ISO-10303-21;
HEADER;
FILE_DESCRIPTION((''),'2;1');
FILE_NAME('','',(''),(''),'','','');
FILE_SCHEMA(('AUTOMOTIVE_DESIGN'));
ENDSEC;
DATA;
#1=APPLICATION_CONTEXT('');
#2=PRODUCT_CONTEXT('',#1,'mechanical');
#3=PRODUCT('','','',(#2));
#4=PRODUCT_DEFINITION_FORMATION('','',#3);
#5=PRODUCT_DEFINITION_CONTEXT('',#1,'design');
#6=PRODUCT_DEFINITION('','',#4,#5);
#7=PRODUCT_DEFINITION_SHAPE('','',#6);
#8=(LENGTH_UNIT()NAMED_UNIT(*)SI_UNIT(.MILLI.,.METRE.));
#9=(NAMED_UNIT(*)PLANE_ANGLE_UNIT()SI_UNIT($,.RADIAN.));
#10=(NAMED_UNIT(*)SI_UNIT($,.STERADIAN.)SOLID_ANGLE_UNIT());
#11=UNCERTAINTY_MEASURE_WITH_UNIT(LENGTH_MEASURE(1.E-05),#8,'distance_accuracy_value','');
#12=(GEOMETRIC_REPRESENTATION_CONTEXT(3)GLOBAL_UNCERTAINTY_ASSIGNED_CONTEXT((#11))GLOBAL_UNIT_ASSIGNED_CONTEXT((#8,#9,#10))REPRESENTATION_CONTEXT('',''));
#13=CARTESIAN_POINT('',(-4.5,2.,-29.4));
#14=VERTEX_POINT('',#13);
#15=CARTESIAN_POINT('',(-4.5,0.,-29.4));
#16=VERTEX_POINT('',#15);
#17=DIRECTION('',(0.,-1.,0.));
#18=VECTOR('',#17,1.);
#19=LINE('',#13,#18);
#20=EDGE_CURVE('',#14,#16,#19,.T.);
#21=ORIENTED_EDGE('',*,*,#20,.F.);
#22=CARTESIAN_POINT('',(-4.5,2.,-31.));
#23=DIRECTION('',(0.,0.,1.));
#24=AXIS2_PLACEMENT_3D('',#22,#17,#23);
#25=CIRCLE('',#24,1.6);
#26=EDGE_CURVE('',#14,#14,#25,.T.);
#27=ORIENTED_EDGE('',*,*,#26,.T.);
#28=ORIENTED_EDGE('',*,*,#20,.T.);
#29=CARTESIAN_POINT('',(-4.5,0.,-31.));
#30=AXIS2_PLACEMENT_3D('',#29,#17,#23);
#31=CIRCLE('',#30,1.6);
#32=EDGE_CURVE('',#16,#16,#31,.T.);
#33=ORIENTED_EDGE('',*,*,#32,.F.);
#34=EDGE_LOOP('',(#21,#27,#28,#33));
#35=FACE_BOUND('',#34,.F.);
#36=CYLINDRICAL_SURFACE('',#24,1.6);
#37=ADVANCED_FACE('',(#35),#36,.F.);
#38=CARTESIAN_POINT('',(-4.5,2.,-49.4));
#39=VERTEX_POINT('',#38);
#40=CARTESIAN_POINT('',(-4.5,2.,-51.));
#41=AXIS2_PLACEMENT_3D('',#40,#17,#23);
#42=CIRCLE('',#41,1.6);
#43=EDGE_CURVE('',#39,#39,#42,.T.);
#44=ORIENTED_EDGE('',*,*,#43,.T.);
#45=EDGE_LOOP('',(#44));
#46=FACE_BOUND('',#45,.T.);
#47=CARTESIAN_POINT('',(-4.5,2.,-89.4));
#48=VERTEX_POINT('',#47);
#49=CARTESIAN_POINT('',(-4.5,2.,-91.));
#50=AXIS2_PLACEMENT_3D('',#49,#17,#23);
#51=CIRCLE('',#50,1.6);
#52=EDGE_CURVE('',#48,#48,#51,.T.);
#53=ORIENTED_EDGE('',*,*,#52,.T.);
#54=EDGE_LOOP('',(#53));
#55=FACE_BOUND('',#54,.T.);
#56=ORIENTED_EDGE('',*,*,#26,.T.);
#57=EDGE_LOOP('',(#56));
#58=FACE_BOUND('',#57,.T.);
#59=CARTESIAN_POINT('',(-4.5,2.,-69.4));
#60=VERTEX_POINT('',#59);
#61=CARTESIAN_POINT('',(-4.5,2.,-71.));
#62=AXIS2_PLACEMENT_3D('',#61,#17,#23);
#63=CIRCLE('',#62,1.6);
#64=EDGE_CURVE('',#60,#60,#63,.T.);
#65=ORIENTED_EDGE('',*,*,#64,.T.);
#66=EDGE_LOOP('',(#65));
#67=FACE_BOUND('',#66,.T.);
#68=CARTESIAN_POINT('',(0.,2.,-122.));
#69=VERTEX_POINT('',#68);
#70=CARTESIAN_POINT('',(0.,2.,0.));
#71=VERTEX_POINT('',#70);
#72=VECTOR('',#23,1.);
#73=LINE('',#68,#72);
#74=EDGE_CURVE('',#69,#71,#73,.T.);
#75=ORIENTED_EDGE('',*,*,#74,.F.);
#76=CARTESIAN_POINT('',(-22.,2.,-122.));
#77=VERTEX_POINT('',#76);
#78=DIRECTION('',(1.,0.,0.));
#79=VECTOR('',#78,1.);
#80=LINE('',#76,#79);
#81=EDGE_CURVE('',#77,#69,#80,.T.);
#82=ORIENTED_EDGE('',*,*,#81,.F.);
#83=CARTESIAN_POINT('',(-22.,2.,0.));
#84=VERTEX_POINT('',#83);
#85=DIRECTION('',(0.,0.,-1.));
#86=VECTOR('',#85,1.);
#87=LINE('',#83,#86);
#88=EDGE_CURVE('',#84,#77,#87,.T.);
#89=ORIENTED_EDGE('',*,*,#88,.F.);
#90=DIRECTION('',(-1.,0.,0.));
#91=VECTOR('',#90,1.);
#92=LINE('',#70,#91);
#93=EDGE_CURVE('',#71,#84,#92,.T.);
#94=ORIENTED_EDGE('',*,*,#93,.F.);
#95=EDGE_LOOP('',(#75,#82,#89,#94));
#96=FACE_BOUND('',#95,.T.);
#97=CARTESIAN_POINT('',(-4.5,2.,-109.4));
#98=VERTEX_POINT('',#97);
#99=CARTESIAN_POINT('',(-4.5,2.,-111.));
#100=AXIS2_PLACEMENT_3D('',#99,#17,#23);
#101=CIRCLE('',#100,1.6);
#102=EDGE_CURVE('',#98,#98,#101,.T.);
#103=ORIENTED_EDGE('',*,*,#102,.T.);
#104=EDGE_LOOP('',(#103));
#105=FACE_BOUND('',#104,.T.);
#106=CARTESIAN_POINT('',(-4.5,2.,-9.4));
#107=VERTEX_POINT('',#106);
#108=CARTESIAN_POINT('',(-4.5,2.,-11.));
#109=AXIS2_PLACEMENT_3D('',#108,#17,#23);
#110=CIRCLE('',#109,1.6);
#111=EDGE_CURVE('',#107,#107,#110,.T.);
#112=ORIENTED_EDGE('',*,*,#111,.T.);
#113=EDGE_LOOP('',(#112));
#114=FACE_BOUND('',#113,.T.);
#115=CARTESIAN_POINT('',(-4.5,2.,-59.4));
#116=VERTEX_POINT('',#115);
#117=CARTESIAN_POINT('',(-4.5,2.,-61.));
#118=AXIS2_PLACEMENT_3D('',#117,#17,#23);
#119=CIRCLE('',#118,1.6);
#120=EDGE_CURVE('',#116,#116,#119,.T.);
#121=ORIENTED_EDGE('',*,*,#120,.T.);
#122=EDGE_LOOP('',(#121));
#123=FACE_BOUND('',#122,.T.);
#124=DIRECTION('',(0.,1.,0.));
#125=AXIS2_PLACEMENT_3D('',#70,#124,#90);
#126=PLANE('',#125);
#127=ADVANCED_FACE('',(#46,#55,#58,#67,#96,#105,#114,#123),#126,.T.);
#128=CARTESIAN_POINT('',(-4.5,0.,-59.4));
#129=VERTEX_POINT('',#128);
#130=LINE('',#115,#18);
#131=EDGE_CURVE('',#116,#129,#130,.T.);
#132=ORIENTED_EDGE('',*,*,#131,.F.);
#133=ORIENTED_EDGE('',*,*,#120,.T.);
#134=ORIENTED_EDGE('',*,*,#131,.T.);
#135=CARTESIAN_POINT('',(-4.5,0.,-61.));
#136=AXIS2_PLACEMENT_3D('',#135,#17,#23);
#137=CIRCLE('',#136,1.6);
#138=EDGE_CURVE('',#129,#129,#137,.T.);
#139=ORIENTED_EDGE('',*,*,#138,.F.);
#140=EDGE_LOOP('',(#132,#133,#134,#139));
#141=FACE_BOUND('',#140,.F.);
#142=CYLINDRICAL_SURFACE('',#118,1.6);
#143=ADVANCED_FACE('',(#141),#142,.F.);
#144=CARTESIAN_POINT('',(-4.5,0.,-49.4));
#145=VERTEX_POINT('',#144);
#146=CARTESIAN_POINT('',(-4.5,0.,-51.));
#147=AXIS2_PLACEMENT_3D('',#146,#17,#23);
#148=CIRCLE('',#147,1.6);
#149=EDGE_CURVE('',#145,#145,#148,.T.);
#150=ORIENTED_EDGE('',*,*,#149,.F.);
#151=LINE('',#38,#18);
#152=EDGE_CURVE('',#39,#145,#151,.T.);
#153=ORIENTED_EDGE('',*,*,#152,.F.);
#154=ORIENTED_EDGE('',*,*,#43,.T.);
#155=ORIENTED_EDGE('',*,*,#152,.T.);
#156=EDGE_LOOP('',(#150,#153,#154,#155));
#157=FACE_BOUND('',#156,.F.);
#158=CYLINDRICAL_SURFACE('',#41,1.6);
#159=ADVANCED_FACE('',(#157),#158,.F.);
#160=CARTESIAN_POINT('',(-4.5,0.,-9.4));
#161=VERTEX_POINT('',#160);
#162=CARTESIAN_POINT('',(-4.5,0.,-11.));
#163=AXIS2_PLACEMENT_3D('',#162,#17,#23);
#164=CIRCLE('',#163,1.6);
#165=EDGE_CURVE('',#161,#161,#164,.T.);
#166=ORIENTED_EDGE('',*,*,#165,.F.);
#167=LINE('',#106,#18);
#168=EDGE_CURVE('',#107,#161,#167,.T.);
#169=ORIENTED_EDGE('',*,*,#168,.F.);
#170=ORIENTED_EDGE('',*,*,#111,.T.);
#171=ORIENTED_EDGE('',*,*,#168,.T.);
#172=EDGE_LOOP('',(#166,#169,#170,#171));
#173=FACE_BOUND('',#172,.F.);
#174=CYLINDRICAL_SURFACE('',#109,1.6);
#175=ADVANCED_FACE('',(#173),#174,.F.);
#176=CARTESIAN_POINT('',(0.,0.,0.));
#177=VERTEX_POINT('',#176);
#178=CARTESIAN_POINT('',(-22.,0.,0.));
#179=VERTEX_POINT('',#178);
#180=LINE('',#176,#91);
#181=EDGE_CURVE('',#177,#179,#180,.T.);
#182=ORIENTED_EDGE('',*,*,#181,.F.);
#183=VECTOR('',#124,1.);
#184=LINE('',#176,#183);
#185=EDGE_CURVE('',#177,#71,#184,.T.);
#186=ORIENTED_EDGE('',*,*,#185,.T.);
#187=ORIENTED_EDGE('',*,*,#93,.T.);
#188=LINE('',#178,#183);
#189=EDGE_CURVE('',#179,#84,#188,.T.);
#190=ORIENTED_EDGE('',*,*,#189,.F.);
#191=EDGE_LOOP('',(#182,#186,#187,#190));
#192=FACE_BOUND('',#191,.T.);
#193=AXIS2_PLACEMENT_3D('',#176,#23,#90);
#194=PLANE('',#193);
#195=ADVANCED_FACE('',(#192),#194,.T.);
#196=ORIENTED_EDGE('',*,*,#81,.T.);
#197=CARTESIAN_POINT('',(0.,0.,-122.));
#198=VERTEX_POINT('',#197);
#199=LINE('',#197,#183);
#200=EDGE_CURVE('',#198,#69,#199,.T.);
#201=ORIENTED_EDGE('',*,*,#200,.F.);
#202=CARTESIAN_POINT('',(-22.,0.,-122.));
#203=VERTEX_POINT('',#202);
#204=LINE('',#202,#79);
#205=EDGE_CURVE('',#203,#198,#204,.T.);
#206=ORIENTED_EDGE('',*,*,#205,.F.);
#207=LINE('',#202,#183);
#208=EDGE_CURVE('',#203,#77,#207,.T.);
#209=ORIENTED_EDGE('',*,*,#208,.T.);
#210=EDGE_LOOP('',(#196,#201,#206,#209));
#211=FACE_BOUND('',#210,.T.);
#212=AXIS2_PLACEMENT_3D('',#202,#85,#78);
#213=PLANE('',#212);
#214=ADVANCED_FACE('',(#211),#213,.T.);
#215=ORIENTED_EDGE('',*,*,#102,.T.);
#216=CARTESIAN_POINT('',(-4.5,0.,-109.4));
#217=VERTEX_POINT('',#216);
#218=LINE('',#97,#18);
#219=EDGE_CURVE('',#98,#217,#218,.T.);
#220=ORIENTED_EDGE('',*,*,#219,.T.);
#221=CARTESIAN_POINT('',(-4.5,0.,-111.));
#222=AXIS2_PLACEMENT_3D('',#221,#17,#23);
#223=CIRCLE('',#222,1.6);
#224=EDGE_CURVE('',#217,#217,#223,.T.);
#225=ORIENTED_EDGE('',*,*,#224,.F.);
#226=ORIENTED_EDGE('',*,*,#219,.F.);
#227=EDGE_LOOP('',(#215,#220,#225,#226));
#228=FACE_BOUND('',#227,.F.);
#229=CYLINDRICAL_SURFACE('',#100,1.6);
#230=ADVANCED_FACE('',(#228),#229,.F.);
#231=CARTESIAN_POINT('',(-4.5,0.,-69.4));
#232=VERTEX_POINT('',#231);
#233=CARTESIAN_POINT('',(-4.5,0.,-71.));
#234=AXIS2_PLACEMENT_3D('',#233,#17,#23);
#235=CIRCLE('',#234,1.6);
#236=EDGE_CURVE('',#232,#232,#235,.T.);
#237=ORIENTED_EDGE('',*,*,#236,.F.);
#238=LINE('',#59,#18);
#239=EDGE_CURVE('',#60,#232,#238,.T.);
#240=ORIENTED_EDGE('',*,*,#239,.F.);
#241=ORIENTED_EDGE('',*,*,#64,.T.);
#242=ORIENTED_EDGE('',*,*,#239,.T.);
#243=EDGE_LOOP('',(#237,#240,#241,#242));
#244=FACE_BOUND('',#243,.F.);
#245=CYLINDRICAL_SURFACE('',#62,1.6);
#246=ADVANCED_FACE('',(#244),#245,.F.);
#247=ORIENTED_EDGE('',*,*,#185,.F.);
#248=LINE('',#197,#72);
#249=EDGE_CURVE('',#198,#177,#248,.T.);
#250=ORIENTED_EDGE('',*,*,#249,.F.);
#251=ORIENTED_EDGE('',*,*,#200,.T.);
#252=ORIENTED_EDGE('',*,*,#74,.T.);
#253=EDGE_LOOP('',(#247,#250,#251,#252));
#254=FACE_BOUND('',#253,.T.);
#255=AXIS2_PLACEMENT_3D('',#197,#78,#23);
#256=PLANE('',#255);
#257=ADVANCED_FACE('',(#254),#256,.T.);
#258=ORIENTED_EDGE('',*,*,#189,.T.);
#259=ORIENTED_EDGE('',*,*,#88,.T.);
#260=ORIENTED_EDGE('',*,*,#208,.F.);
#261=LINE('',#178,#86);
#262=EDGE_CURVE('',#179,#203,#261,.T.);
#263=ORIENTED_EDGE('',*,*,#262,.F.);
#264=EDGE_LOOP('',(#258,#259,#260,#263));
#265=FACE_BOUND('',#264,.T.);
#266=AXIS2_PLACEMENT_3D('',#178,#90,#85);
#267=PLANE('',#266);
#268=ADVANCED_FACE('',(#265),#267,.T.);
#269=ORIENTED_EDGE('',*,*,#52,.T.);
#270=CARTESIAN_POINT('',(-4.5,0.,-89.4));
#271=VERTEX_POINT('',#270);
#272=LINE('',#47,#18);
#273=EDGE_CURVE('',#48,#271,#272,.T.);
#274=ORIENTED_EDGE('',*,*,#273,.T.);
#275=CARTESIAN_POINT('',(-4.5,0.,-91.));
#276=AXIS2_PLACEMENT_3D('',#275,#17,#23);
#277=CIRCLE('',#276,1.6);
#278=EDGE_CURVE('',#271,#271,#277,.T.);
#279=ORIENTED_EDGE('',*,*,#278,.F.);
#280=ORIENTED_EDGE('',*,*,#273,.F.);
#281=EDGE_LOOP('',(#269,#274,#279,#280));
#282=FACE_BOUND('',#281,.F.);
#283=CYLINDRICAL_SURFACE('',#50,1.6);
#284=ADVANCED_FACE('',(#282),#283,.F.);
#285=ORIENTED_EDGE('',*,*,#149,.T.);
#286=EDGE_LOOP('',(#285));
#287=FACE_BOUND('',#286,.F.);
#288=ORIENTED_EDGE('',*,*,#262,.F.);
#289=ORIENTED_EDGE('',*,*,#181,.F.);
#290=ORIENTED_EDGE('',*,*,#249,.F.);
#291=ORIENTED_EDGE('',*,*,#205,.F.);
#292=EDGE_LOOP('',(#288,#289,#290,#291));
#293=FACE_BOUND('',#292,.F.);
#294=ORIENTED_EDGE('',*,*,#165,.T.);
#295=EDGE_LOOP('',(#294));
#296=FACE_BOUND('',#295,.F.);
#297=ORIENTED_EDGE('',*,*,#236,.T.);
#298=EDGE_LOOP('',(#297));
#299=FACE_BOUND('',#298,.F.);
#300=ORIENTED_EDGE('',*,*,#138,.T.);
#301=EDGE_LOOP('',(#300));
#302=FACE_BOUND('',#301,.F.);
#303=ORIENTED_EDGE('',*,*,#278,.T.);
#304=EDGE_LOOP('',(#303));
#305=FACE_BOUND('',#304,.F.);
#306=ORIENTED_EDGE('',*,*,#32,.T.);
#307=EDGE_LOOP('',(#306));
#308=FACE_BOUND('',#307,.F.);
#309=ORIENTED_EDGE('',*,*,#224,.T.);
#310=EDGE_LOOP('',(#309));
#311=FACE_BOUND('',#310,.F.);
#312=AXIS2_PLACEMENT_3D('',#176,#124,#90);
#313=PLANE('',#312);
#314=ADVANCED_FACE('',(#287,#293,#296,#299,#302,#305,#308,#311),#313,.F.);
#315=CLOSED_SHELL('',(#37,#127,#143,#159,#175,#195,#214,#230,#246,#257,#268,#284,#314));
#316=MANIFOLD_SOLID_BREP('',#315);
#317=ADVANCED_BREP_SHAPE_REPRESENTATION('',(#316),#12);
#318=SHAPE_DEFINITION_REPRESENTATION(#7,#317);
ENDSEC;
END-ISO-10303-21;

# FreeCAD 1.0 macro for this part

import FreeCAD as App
import Part
import Sketcher
from FreeCAD import Vector
Q = App.Units.Quantity

doc = App.newDocument("Part")
params = doc.addObject("Spreadsheet::Sheet", "Params")
for row, (alias, value) in enumerate([
    ("sketch1_width", "22 mm"),
    ("sketch1_height", "122 mm"),
    ("pad1_length", "2 mm"),
    ("sketch2_diameter", "3.2 mm"),
    ("hole_diameter", "3.2 mm"),
    ("hole_depth", "3 mm"),
], start=1):
    params.set(f"A{row}", alias)
    params.set(f"B{row}", "=" + value)
    params.setAlias(f"B{row}", alias)

body = doc.addObject("PartDesign::Body", "Body")

# Sketch on XZ plane
sketch1 = doc.addObject("Sketcher::SketchObject", "Sketch")
body.addObject(sketch1)
sketch1.AttachmentSupport = (doc.XZ_Plane, [""])
sketch1.MapMode = "FlatFace"
sketch1.addGeometry([
    Part.LineSegment(Vector(-22, 0, 0), Vector(0, 0, 0)),
    Part.LineSegment(Vector(0, 0, 0), Vector(0, -122, 0)),
    Part.LineSegment(Vector(0, -122, 0), Vector(-22, -122, 0)),
    Part.LineSegment(Vector(-22, -122, 0), Vector(-22, 0, 0)),
], False)
sketch1.addConstraint([
    Sketcher.Constraint("Coincident", 0, 2, 1, 1),
    Sketcher.Constraint("Coincident", 1, 2, 2, 1),
    Sketcher.Constraint("Coincident", 2, 2, 3, 1),
    Sketcher.Constraint("Coincident", 3, 2, 0, 1),
    Sketcher.Constraint("Horizontal", 0),
    Sketcher.Constraint("Vertical", 1),
    Sketcher.Constraint("Horizontal", 2),
    Sketcher.Constraint("Vertical", 3),
    Sketcher.Constraint("Coincident", 0, 2, -1, 1),
    Sketcher.Constraint("DistanceX", 0, 1, 0, 2, Q("22 mm")),
    Sketcher.Constraint("DistanceY", 1, 2, 1, 1, Q("122 mm")),
])
sketch1.setExpression("Constraints[9]", "Params.sketch1_width")
sketch1.setExpression("Constraints[10]", "Params.sketch1_height")
pad1 = doc.addObject("PartDesign::Pad", "Pad")
body.addObject(pad1)
pad1.Profile = sketch1
pad1.setExpression("Length", "Params.pad1_length")
pad1.Reversed = True

# Sketch on XZ plane
sketch2 = doc.addObject("Sketcher::SketchObject", "Sketch001")
body.addObject(sketch2)
sketch2.AttachmentSupport = (doc.XZ_Plane, [""])
sketch2.MapMode = "FlatFace"
sketch2.AttachmentOffset = App.Placement(Vector(0, 0, -2), App.Rotation())
sketch2.addGeometry([
    Part.Circle(Vector(-4.5, -11, 0), Vector(0, 0, 1), 1.6),  # 0
    Part.Circle(Vector(-4.5, -31, 0), Vector(0, 0, 1), 1.6),  # 1
    Part.Circle(Vector(-4.5, -51, 0), Vector(0, 0, 1), 1.6),  # 2
    Part.Circle(Vector(-4.5, -61, 0), Vector(0, 0, 1), 1.6),  # 3
    Part.Circle(Vector(-4.5, -71, 0), Vector(0, 0, 1), 1.6),  # 4
    Part.Circle(Vector(-4.5, -91, 0), Vector(0, 0, 1), 1.6),  # 5
    Part.Circle(Vector(-4.5, -111, 0), Vector(0, 0, 1), 1.6),  # 6
], False)
sketch2.addConstraint([
    Sketcher.Constraint("Equal", 0, 1),
    Sketcher.Constraint("Equal", 1, 2),
    Sketcher.Constraint("Equal", 2, 3),
    Sketcher.Constraint("Equal", 3, 4),
    Sketcher.Constraint("Equal", 4, 5),
    Sketcher.Constraint("Equal", 5, 6),
    Sketcher.Constraint("Vertical", 0, 3, 1, 3),
    Sketcher.Constraint("Vertical", 1, 3, 2, 3),
    Sketcher.Constraint("Vertical", 2, 3, 3, 3),
    Sketcher.Constraint("Vertical", 3, 3, 4, 3),
    Sketcher.Constraint("Vertical", 4, 3, 5, 3),
    Sketcher.Constraint("Vertical", 5, 3, 6, 3),
    Sketcher.Constraint("Diameter", 0, Q("3.2 mm")),
    Sketcher.Constraint("DistanceY", 0, 3, -1, 1, Q("11 mm")),
    Sketcher.Constraint("DistanceY", 1, 3, -1, 1, Q("31 mm")),
    Sketcher.Constraint("DistanceY", 2, 3, -1, 1, Q("51 mm")),
    Sketcher.Constraint("DistanceY", 3, 3, -1, 1, Q("61 mm")),
    Sketcher.Constraint("DistanceY", 4, 3, -1, 1, Q("71 mm")),
    Sketcher.Constraint("DistanceY", 5, 3, -1, 1, Q("91 mm")),
    Sketcher.Constraint("DistanceY", 6, 3, -1, 1, Q("111 mm")),
    Sketcher.Constraint("DistanceX", 0, 3, -1, 1, Q("4.5 mm")),
])
sketch2.setExpression("Constraints[12]", "Params.sketch2_diameter")
doc.recompute()
hole = doc.addObject("PartDesign::Hole", "Hole")
body.addObject(hole)
hole.Profile = sketch2
hole.ThreadType = "None"
hole.setExpression("Diameter", "Params.hole_diameter")
hole.DepthType = "Dimension"
hole.setExpression("Depth", "Params.hole_depth")
hole.DrillPoint = "Flat"
hole.Reversed = True

doc.recompute()
